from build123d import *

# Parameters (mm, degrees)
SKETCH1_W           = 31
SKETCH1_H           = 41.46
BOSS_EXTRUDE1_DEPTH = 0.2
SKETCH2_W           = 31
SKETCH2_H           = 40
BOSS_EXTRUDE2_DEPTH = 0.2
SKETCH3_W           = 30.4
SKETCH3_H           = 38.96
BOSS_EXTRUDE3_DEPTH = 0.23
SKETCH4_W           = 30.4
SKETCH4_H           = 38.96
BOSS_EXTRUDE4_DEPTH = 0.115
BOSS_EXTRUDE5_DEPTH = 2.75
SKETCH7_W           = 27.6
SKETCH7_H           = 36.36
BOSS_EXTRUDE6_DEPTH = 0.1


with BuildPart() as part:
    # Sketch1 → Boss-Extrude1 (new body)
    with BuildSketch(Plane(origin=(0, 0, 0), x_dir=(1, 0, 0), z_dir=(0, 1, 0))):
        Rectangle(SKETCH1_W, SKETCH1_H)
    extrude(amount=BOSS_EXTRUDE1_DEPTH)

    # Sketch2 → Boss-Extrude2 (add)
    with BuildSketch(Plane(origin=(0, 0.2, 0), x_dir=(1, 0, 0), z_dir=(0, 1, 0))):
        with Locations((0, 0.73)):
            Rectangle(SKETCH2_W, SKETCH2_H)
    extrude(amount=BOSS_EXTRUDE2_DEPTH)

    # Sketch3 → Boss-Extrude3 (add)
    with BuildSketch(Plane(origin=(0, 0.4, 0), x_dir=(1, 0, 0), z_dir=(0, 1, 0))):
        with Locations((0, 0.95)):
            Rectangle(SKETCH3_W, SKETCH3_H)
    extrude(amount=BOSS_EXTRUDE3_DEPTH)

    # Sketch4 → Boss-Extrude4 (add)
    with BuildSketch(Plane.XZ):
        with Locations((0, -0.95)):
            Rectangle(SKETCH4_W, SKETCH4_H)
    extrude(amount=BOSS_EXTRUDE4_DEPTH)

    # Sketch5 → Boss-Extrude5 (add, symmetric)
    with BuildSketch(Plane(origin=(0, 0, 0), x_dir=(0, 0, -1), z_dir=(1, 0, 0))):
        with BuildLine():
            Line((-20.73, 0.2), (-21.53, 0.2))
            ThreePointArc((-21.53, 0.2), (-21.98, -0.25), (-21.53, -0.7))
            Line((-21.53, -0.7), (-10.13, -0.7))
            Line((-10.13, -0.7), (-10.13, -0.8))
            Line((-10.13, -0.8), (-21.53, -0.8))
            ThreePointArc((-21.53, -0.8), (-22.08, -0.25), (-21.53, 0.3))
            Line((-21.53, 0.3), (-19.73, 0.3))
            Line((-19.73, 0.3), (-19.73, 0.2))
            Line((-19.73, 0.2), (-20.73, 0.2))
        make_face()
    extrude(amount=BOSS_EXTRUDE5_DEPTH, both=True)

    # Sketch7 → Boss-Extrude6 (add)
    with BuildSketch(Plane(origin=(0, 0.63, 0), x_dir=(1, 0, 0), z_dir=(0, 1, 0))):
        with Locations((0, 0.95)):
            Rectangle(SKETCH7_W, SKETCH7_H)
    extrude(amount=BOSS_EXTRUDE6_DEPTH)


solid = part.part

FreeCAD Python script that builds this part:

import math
import FreeCAD as App
import Part
import Sketcher
from FreeCAD import Vector

doc = App.newDocument("Part")
body = doc.addObject("PartDesign::Body", "Body")

# Sketch on XZ plane
sketch1 = body.newObject("Sketcher::SketchObject", "Sketch")
sketch1.AttachmentSupport = (doc.getObject("XZ_Plane"), [""])
sketch1.MapMode = "FlatFace"
sketch1.addGeometry([
    Part.LineSegment(Vector(-15.5, -20.73, 0), Vector(-15.5, 20.73, 0)),
    Part.LineSegment(Vector(-15.5, 20.73, 0), Vector(15.5, 20.73, 0)),
    Part.LineSegment(Vector(15.5, 20.73, 0), Vector(15.5, -20.73, 0)),
    Part.LineSegment(Vector(15.5, -20.73, 0), Vector(-15.5, -20.73, 0)),
], False)
sketch1.addConstraint([
    Sketcher.Constraint("Coincident", 0, 2, 1, 1),
    Sketcher.Constraint("Coincident", 1, 2, 2, 1),
    Sketcher.Constraint("Coincident", 2, 2, 3, 1),
    Sketcher.Constraint("Coincident", 3, 2, 0, 1),
    Sketcher.Constraint("Vertical", 0),
    Sketcher.Constraint("Horizontal", 1),
    Sketcher.Constraint("Vertical", 2),
    Sketcher.Constraint("Horizontal", 3),
    Sketcher.Constraint("Symmetric", 0, 2, 2, 2, -1, 1),
    Sketcher.Constraint("DistanceX", 1, 1, 1, 2, 31.0),
    Sketcher.Constraint("DistanceY", 0, 1, 0, 2, 41.46),
])
pad1 = body.newObject("PartDesign::Pad", "Pad")
pad1.Profile = sketch1
pad1.Length = 0.2
pad1.Reversed = True

# Sketch on XZ plane
sketch2 = body.newObject("Sketcher::SketchObject", "Sketch001")
sketch2.AttachmentSupport = (doc.getObject("XZ_Plane"), [""])
sketch2.MapMode = "FlatFace"
sketch2.AttachmentOffset = App.Placement(Vector(0, 0, -0.2), App.Rotation())
sketch2.addGeometry([
    Part.LineSegment(Vector(-15.5, -20.73, 0), Vector(-15.5, 19.27, 0)),
    Part.LineSegment(Vector(-15.5, 19.27, 0), Vector(15.5, 19.27, 0)),
    Part.LineSegment(Vector(15.5, 19.27, 0), Vector(15.5, -20.73, 0)),
    Part.LineSegment(Vector(15.5, -20.73, 0), Vector(-15.5, -20.73, 0)),
], False)
sketch2.addConstraint([
    Sketcher.Constraint("Coincident", 0, 2, 1, 1),
    Sketcher.Constraint("Coincident", 1, 2, 2, 1),
    Sketcher.Constraint("Coincident", 2, 2, 3, 1),
    Sketcher.Constraint("Coincident", 3, 2, 0, 1),
    Sketcher.Constraint("Vertical", 0),
    Sketcher.Constraint("Horizontal", 1),
    Sketcher.Constraint("Vertical", 2),
    Sketcher.Constraint("Horizontal", 3),
    Sketcher.Constraint("DistanceX", 1, 1, 1, 2, 31.0),
    Sketcher.Constraint("DistanceY", 0, 1, 0, 2, 40.0),
    Sketcher.Constraint("DistanceX", 0, 2, -1, 1, 15.5),
    Sketcher.Constraint("DistanceY", -1, 1, 0, 2, 19.27),
])
pad2 = body.newObject("PartDesign::Pad", "Pad001")
pad2.Profile = sketch2
pad2.Length = 0.2
pad2.Reversed = True

# Sketch on XZ plane
sketch3 = body.newObject("Sketcher::SketchObject", "Sketch002")
sketch3.AttachmentSupport = (doc.getObject("XZ_Plane"), [""])
sketch3.MapMode = "FlatFace"
sketch3.AttachmentOffset = App.Placement(Vector(0, 0, -0.4), App.Rotation())
sketch3.addGeometry([
    Part.LineSegment(Vector(-15.2, -20.43, 0), Vector(-15.2, 18.53, 0)),
    Part.LineSegment(Vector(-15.2, 18.53, 0), Vector(15.2, 18.53, 0)),
    Part.LineSegment(Vector(15.2, 18.53, 0), Vector(15.2, -20.43, 0)),
    Part.LineSegment(Vector(15.2, -20.43, 0), Vector(-15.2, -20.43, 0)),
], False)
sketch3.addConstraint([
    Sketcher.Constraint("Coincident", 0, 2, 1, 1),
    Sketcher.Constraint("Coincident", 1, 2, 2, 1),
    Sketcher.Constraint("Coincident", 2, 2, 3, 1),
    Sketcher.Constraint("Coincident", 3, 2, 0, 1),
    Sketcher.Constraint("Vertical", 0),
    Sketcher.Constraint("Horizontal", 1),
    Sketcher.Constraint("Vertical", 2),
    Sketcher.Constraint("Horizontal", 3),
    Sketcher.Constraint("DistanceX", 1, 1, 1, 2, 30.4),
    Sketcher.Constraint("DistanceY", 0, 1, 0, 2, 38.96),
    Sketcher.Constraint("DistanceX", 0, 2, -1, 1, 15.2),
    Sketcher.Constraint("DistanceY", -1, 1, 0, 2, 18.53),
])
pad3 = body.newObject("PartDesign::Pad", "Pad002")
pad3.Profile = sketch3
pad3.Length = 0.23
pad3.Reversed = True

# Sketch on XZ plane
sketch4 = body.newObject("Sketcher::SketchObject", "Sketch003")
sketch4.AttachmentSupport = (doc.getObject("XZ_Plane"), [""])
sketch4.MapMode = "FlatFace"
sketch4.addGeometry([
    Part.LineSegment(Vector(-15.2, 18.53, 0), Vector(-15.2, -20.43, 0)),
    Part.LineSegment(Vector(-15.2, -20.43, 0), Vector(15.2, -20.43, 0)),
    Part.LineSegment(Vector(15.2, -20.43, 0), Vector(15.2, 18.53, 0)),
    Part.LineSegment(Vector(15.2, 18.53, 0), Vector(-15.2, 18.53, 0)),
], False)
sketch4.addConstraint([
    Sketcher.Constraint("Coincident", 0, 2, 1, 1),
    Sketcher.Constraint("Coincident", 1, 2, 2, 1),
    Sketcher.Constraint("Coincident", 2, 2, 3, 1),
    Sketcher.Constraint("Coincident", 3, 2, 0, 1),
    Sketcher.Constraint("Vertical", 0),
    Sketcher.Constraint("Horizontal", 1),
    Sketcher.Constraint("Vertical", 2),
    Sketcher.Constraint("Horizontal", 3),
    Sketcher.Constraint("DistanceX", 1, 1, 1, 2, 30.4),
    Sketcher.Constraint("DistanceY", 0, 2, 0, 1, 38.96),
    Sketcher.Constraint("DistanceX", 0, 2, -1, 1, 15.2),
    Sketcher.Constraint("DistanceY", 0, 2, -1, 1, 20.43),
])
pad4 = body.newObject("PartDesign::Pad", "Pad003")
pad4.Profile = sketch4
pad4.Length = 0.115

# Sketch on YZ plane
sketch5 = body.newObject("Sketcher::SketchObject", "Sketch004")
sketch5.AttachmentSupport = (doc.getObject("YZ_Plane"), [""])
sketch5.MapMode = "FlatFace"
sketch5.addGeometry([
    Part.ArcOfCircle(Part.Circle(Vector(-0.25, 21.53, 0), Vector(0, 0, 1), 0.45), math.radians(0), math.radians(180)),  # 0
    Part.LineSegment(Vector(0.2, 21.53, 0), Vector(0.2, 19.73, 0)),  # 1
    Part.LineSegment(Vector(0.2, 19.73, 0), Vector(0.3, 19.73, 0)),  # 2
    Part.LineSegment(Vector(0.3, 19.73, 0), Vector(0.3, 21.53, 0)),  # 3
    Part.ArcOfCircle(Part.Circle(Vector(-0.25, 21.53, 0), Vector(0, 0, 1), 0.55), math.radians(0), math.radians(180)),  # 4
    Part.LineSegment(Vector(-0.8, 21.53, 0), Vector(-0.8, 10.13, 0)),  # 5
    Part.LineSegment(Vector(-0.8, 10.13, 0), Vector(-0.7, 10.13, 0)),  # 6
    Part.LineSegment(Vector(-0.7, 10.13, 0), Vector(-0.7, 21.53, 0)),  # 7
], False)
sketch5.addConstraint([
    Sketcher.Constraint("Tangent", 0, 1, 1, 1),
    Sketcher.Constraint("Coincident", 1, 2, 2, 1),
    Sketcher.Constraint("Coincident", 2, 2, 3, 1),
    Sketcher.Constraint("Tangent", 3, 2, 4, 1),
    Sketcher.Constraint("Tangent", 4, 2, 5, 1),
    Sketcher.Constraint("Coincident", 5, 2, 6, 1),
    Sketcher.Constraint("Coincident", 6, 2, 7, 1),
    Sketcher.Constraint("Tangent", 7, 2, 0, 2),
    Sketcher.Constraint("Vertical", 1),
    Sketcher.Constraint("Horizontal", 2),
    Sketcher.Constraint("Vertical", 3),
    Sketcher.Constraint("Vertical", 5),
    Sketcher.Constraint("Horizontal", 6),
    Sketcher.Constraint("Vertical", 7),
    Sketcher.Constraint("Coincident", 4, 3, 0, 3),
    Sketcher.Constraint("Radius", 0, 0.45),
    Sketcher.Constraint("Radius", 4, 0.55),
    Sketcher.Constraint("DistanceY", 1, 2, 1, 1, 1.8),
    Sketcher.Constraint("DistanceY", 5, 2, 5, 1, 11.4),
    Sketcher.Constraint("DistanceX", -1, 1, 0, 1, 0.2),
    Sketcher.Constraint("DistanceY", -1, 1, 0, 3, 21.53),
])
pad5 = body.newObject("PartDesign::Pad", "Pad004")
pad5.Profile = sketch5
pad5.Length = 5.5
pad5.Midplane = True

# Sketch on XZ plane
sketch6 = body.newObject("Sketcher::SketchObject", "Sketch005")
sketch6.AttachmentSupport = (doc.getObject("XZ_Plane"), [""])
sketch6.MapMode = "FlatFace"
sketch6.AttachmentOffset = App.Placement(Vector(0, 0, -0.63), App.Rotation())
sketch6.addGeometry([
    Part.LineSegment(Vector(-13.8, -19.13, 0), Vector(-13.8, 17.23, 0)),
    Part.LineSegment(Vector(-13.8, 17.23, 0), Vector(13.8, 17.23, 0)),
    Part.LineSegment(Vector(13.8, 17.23, 0), Vector(13.8, -19.13, 0)),
    Part.LineSegment(Vector(13.8, -19.13, 0), Vector(-13.8, -19.13, 0)),
], False)
sketch6.addConstraint([
    Sketcher.Constraint("Coincident", 0, 2, 1, 1),
    Sketcher.Constraint("Coincident", 1, 2, 2, 1),
    Sketcher.Constraint("Coincident", 2, 2, 3, 1),
    Sketcher.Constraint("Coincident", 3, 2, 0, 1),
    Sketcher.Constraint("Vertical", 0),
    Sketcher.Constraint("Horizontal", 1),
    Sketcher.Constraint("Vertical", 2),
    Sketcher.Constraint("Horizontal", 3),
    Sketcher.Constraint("DistanceX", 1, 1, 1, 2, 27.6),
    Sketcher.Constraint("DistanceY", 0, 1, 0, 2, 36.36),
    Sketcher.Constraint("DistanceX", 0, 2, -1, 1, 13.8),
    Sketcher.Constraint("DistanceY", -1, 1, 0, 2, 17.23),
])
pad6 = body.newObject("PartDesign::Pad", "Pad005")
pad6.Profile = sketch6
pad6.Length = 0.1
pad6.Reversed = True

doc.recompute()
